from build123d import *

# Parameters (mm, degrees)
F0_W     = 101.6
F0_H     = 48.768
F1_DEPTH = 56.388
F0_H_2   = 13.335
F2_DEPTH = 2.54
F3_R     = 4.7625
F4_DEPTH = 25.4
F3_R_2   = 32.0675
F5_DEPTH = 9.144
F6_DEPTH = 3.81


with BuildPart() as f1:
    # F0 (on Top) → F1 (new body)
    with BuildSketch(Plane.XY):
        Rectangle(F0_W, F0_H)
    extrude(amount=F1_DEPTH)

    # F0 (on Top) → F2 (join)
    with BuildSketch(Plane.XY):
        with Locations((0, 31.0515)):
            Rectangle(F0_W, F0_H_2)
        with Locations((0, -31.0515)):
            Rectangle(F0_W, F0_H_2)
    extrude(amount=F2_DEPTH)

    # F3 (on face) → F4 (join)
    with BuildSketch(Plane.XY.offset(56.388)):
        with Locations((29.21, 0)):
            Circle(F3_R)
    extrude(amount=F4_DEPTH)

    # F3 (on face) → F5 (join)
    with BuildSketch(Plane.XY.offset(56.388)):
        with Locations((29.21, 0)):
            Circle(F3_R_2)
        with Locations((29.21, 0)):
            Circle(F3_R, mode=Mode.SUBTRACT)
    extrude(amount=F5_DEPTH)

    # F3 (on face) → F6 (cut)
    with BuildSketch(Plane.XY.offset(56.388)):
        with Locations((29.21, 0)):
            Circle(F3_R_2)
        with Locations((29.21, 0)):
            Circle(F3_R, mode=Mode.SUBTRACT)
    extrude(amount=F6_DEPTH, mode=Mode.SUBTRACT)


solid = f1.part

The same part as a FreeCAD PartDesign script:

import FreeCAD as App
import Part
import Sketcher

V = App.Vector
Q = App.Units.Quantity

doc = App.newDocument("Part")
body = doc.addObject("PartDesign::Body", "Body")

# Sketch on XY plane
sketch1 = doc.addObject("Sketcher::SketchObject", "Sketch")
body.addObject(sketch1)
sketch1.AttachmentSupport = (doc.XY_Plane, [""])
sketch1.MapMode = "FlatFace"
sketch1.addGeometry([
    Part.LineSegment(V(-50.8, 24.384, 0), V(-50.8, -24.384, 0)),
    Part.LineSegment(V(-50.8, -24.384, 0), V(50.8, -24.384, 0)),
    Part.LineSegment(V(50.8, -24.384, 0), V(50.8, 24.384, 0)),
    Part.LineSegment(V(50.8, 24.384, 0), V(-50.8, 24.384, 0)),
], False)
sketch1.addConstraint([
    Sketcher.Constraint("Coincident", 0, 2, 1, 1),
    Sketcher.Constraint("Coincident", 1, 2, 2, 1),
    Sketcher.Constraint("Coincident", 2, 2, 3, 1),
    Sketcher.Constraint("Coincident", 3, 2, 0, 1),
    Sketcher.Constraint("Vertical", 0),
    Sketcher.Constraint("Horizontal", 1),
    Sketcher.Constraint("Vertical", 2),
    Sketcher.Constraint("Horizontal", 3),
    Sketcher.Constraint("Symmetric", 0, 2, 2, 2, -1, 1),
    Sketcher.Constraint("DistanceX", 1, 1, 1, 2, Q("4 in")),
    Sketcher.Constraint("DistanceY", 0, 2, 0, 1, Q("1.92 in")),
])
pad1 = doc.addObject("PartDesign::Pad", "Pad")
body.addObject(pad1)
pad1.Profile = sketch1
pad1.Length = Q("2.22 in")

# Sketch on XY plane
sketch2 = doc.addObject("Sketcher::SketchObject", "Sketch001")
body.addObject(sketch2)
sketch2.AttachmentSupport = (doc.XY_Plane, [""])
sketch2.MapMode = "FlatFace"
sketch2.addGeometry([
    Part.LineSegment(V(-50.8, 37.719, 0), V(-50.8, 24.384, 0)),  # 0
    Part.LineSegment(V(-50.8, 24.384, 0), V(50.8, 24.384, 0)),  # 1
    Part.LineSegment(V(50.8, 24.384, 0), V(50.8, 37.719, 0)),  # 2
    Part.LineSegment(V(50.8, 37.719, 0), V(-50.8, 37.719, 0)),  # 3
    Part.LineSegment(V(-50.8, -24.384, 0), V(-50.8, -37.719, 0)),  # 4
    Part.LineSegment(V(-50.8, -37.719, 0), V(50.8, -37.719, 0)),  # 5
    Part.LineSegment(V(50.8, -37.719, 0), V(50.8, -24.384, 0)),  # 6
    Part.LineSegment(V(50.8, -24.384, 0), V(-50.8, -24.384, 0)),  # 7
], False)
sketch2.addConstraint([
    Sketcher.Constraint("Coincident", 0, 2, 1, 1),
    Sketcher.Constraint("Coincident", 1, 2, 2, 1),
    Sketcher.Constraint("Coincident", 2, 2, 3, 1),
    Sketcher.Constraint("Coincident", 3, 2, 0, 1),
    Sketcher.Constraint("Coincident", 4, 2, 5, 1),
    Sketcher.Constraint("Coincident", 5, 2, 6, 1),
    Sketcher.Constraint("Coincident", 6, 2, 7, 1),
    Sketcher.Constraint("Coincident", 7, 2, 4, 1),
    Sketcher.Constraint("Vertical", 0),
    Sketcher.Constraint("Horizontal", 1),
    Sketcher.Constraint("Vertical", 2),
    Sketcher.Constraint("Horizontal", 3),
    Sketcher.Constraint("Vertical", 4),
    Sketcher.Constraint("Horizontal", 5),
    Sketcher.Constraint("Vertical", 6),
    Sketcher.Constraint("Horizontal", 7),
    Sketcher.Constraint("Symmetric", 2, 2, 4, 2, -1, 1),
    Sketcher.Constraint("Symmetric", 0, 2, 6, 2, -1, 1),
    Sketcher.Constraint("Vertical", 3, 2, 4, 2),
    Sketcher.Constraint("DistanceX", 1, 1, 1, 2, Q("4 in")),
    Sketcher.Constraint("DistanceY", 0, 2, 0, 1, Q("0.525 in")),
    Sketcher.Constraint("DistanceY", -1, 1, 0, 2, Q("0.96 in")),
])
pad2 = doc.addObject("PartDesign::Pad", "Pad001")
body.addObject(pad2)
pad2.Profile = sketch2
pad2.Length = Q("0.1 in")

# Sketch on XY plane
sketch3 = doc.addObject("Sketcher::SketchObject", "Sketch002")
body.addObject(sketch3)
sketch3.AttachmentSupport = (doc.XY_Plane, [""])
sketch3.MapMode = "FlatFace"
sketch3.AttachmentOffset = App.Placement(V(0, 0, 2.22 * 25.4), App.Rotation())
sketch3.addGeometry(Part.Circle(V(29.21, 0, 0), V(0, 0, 1), 4.7625), False)
sketch3.addConstraint([
    Sketcher.Constraint("PointOnObject", 0, 3, -1),
    Sketcher.Constraint("Diameter", 0, Q("0.375 in")),
    Sketcher.Constraint("DistanceX", -1, 1, 0, 3, Q("1.15 in")),
])
pad3 = doc.addObject("PartDesign::Pad", "Pad002")
body.addObject(pad3)
pad3.Profile = sketch3
pad3.Length = Q("1 in")

# Sketch on XY plane
sketch4 = doc.addObject("Sketcher::SketchObject", "Sketch003")
body.addObject(sketch4)
sketch4.AttachmentSupport = (doc.XY_Plane, [""])
sketch4.MapMode = "FlatFace"
sketch4.AttachmentOffset = App.Placement(V(0, 0, 2.22 * 25.4), App.Rotation())
sketch4.addGeometry([
    Part.Circle(V(29.21, 0, 0), V(0, 0, 1), 32.0675),
    Part.Circle(V(29.21, 0, 0), V(0, 0, 1), 4.7625),
], False)
sketch4.addConstraint([
    Sketcher.Constraint("Coincident", 1, 3, 0, 3),
    Sketcher.Constraint("PointOnObject", 0, 3, -1),
    Sketcher.Constraint("Diameter", 0, Q("2.525 in")),
    Sketcher.Constraint("Diameter", 1, Q("0.375 in")),
    Sketcher.Constraint("DistanceX", -1, 1, 0, 3, Q("1.15 in")),
])
pad4 = doc.addObject("PartDesign::Pad", "Pad003")
body.addObject(pad4)
pad4.Profile = sketch4
pad4.Length = Q("0.36 in")

# Sketch on XY plane
sketch5 = doc.addObject("Sketcher::SketchObject", "Sketch004")
body.addObject(sketch5)
sketch5.AttachmentSupport = (doc.XY_Plane, [""])
sketch5.MapMode = "FlatFace"
sketch5.AttachmentOffset = App.Placement(V(0, 0, 2.22 * 25.4), App.Rotation())
sketch5.addGeometry([
    Part.Circle(V(29.21, 0, 0), V(0, 0, 1), 32.0675),
    Part.Circle(V(29.21, 0, 0), V(0, 0, 1), 4.7625),
], False)
sketch5.addConstraint([
    Sketcher.Constraint("Coincident", 1, 3, 0, 3),
    Sketcher.Constraint("PointOnObject", 0, 3, -1),
    Sketcher.Constraint("Diameter", 0, Q("2.525 in")),
    Sketcher.Constraint("Diameter", 1, Q("0.375 in")),
    Sketcher.Constraint("DistanceX", -1, 1, 0, 3, Q("1.15 in")),
])
pocket1 = doc.addObject("PartDesign::Pocket", "Pocket")
body.addObject(pocket1)
pocket1.Profile = sketch5
pocket1.Length = Q("0.15 in")
pocket1.Reversed = True

doc.recompute()
